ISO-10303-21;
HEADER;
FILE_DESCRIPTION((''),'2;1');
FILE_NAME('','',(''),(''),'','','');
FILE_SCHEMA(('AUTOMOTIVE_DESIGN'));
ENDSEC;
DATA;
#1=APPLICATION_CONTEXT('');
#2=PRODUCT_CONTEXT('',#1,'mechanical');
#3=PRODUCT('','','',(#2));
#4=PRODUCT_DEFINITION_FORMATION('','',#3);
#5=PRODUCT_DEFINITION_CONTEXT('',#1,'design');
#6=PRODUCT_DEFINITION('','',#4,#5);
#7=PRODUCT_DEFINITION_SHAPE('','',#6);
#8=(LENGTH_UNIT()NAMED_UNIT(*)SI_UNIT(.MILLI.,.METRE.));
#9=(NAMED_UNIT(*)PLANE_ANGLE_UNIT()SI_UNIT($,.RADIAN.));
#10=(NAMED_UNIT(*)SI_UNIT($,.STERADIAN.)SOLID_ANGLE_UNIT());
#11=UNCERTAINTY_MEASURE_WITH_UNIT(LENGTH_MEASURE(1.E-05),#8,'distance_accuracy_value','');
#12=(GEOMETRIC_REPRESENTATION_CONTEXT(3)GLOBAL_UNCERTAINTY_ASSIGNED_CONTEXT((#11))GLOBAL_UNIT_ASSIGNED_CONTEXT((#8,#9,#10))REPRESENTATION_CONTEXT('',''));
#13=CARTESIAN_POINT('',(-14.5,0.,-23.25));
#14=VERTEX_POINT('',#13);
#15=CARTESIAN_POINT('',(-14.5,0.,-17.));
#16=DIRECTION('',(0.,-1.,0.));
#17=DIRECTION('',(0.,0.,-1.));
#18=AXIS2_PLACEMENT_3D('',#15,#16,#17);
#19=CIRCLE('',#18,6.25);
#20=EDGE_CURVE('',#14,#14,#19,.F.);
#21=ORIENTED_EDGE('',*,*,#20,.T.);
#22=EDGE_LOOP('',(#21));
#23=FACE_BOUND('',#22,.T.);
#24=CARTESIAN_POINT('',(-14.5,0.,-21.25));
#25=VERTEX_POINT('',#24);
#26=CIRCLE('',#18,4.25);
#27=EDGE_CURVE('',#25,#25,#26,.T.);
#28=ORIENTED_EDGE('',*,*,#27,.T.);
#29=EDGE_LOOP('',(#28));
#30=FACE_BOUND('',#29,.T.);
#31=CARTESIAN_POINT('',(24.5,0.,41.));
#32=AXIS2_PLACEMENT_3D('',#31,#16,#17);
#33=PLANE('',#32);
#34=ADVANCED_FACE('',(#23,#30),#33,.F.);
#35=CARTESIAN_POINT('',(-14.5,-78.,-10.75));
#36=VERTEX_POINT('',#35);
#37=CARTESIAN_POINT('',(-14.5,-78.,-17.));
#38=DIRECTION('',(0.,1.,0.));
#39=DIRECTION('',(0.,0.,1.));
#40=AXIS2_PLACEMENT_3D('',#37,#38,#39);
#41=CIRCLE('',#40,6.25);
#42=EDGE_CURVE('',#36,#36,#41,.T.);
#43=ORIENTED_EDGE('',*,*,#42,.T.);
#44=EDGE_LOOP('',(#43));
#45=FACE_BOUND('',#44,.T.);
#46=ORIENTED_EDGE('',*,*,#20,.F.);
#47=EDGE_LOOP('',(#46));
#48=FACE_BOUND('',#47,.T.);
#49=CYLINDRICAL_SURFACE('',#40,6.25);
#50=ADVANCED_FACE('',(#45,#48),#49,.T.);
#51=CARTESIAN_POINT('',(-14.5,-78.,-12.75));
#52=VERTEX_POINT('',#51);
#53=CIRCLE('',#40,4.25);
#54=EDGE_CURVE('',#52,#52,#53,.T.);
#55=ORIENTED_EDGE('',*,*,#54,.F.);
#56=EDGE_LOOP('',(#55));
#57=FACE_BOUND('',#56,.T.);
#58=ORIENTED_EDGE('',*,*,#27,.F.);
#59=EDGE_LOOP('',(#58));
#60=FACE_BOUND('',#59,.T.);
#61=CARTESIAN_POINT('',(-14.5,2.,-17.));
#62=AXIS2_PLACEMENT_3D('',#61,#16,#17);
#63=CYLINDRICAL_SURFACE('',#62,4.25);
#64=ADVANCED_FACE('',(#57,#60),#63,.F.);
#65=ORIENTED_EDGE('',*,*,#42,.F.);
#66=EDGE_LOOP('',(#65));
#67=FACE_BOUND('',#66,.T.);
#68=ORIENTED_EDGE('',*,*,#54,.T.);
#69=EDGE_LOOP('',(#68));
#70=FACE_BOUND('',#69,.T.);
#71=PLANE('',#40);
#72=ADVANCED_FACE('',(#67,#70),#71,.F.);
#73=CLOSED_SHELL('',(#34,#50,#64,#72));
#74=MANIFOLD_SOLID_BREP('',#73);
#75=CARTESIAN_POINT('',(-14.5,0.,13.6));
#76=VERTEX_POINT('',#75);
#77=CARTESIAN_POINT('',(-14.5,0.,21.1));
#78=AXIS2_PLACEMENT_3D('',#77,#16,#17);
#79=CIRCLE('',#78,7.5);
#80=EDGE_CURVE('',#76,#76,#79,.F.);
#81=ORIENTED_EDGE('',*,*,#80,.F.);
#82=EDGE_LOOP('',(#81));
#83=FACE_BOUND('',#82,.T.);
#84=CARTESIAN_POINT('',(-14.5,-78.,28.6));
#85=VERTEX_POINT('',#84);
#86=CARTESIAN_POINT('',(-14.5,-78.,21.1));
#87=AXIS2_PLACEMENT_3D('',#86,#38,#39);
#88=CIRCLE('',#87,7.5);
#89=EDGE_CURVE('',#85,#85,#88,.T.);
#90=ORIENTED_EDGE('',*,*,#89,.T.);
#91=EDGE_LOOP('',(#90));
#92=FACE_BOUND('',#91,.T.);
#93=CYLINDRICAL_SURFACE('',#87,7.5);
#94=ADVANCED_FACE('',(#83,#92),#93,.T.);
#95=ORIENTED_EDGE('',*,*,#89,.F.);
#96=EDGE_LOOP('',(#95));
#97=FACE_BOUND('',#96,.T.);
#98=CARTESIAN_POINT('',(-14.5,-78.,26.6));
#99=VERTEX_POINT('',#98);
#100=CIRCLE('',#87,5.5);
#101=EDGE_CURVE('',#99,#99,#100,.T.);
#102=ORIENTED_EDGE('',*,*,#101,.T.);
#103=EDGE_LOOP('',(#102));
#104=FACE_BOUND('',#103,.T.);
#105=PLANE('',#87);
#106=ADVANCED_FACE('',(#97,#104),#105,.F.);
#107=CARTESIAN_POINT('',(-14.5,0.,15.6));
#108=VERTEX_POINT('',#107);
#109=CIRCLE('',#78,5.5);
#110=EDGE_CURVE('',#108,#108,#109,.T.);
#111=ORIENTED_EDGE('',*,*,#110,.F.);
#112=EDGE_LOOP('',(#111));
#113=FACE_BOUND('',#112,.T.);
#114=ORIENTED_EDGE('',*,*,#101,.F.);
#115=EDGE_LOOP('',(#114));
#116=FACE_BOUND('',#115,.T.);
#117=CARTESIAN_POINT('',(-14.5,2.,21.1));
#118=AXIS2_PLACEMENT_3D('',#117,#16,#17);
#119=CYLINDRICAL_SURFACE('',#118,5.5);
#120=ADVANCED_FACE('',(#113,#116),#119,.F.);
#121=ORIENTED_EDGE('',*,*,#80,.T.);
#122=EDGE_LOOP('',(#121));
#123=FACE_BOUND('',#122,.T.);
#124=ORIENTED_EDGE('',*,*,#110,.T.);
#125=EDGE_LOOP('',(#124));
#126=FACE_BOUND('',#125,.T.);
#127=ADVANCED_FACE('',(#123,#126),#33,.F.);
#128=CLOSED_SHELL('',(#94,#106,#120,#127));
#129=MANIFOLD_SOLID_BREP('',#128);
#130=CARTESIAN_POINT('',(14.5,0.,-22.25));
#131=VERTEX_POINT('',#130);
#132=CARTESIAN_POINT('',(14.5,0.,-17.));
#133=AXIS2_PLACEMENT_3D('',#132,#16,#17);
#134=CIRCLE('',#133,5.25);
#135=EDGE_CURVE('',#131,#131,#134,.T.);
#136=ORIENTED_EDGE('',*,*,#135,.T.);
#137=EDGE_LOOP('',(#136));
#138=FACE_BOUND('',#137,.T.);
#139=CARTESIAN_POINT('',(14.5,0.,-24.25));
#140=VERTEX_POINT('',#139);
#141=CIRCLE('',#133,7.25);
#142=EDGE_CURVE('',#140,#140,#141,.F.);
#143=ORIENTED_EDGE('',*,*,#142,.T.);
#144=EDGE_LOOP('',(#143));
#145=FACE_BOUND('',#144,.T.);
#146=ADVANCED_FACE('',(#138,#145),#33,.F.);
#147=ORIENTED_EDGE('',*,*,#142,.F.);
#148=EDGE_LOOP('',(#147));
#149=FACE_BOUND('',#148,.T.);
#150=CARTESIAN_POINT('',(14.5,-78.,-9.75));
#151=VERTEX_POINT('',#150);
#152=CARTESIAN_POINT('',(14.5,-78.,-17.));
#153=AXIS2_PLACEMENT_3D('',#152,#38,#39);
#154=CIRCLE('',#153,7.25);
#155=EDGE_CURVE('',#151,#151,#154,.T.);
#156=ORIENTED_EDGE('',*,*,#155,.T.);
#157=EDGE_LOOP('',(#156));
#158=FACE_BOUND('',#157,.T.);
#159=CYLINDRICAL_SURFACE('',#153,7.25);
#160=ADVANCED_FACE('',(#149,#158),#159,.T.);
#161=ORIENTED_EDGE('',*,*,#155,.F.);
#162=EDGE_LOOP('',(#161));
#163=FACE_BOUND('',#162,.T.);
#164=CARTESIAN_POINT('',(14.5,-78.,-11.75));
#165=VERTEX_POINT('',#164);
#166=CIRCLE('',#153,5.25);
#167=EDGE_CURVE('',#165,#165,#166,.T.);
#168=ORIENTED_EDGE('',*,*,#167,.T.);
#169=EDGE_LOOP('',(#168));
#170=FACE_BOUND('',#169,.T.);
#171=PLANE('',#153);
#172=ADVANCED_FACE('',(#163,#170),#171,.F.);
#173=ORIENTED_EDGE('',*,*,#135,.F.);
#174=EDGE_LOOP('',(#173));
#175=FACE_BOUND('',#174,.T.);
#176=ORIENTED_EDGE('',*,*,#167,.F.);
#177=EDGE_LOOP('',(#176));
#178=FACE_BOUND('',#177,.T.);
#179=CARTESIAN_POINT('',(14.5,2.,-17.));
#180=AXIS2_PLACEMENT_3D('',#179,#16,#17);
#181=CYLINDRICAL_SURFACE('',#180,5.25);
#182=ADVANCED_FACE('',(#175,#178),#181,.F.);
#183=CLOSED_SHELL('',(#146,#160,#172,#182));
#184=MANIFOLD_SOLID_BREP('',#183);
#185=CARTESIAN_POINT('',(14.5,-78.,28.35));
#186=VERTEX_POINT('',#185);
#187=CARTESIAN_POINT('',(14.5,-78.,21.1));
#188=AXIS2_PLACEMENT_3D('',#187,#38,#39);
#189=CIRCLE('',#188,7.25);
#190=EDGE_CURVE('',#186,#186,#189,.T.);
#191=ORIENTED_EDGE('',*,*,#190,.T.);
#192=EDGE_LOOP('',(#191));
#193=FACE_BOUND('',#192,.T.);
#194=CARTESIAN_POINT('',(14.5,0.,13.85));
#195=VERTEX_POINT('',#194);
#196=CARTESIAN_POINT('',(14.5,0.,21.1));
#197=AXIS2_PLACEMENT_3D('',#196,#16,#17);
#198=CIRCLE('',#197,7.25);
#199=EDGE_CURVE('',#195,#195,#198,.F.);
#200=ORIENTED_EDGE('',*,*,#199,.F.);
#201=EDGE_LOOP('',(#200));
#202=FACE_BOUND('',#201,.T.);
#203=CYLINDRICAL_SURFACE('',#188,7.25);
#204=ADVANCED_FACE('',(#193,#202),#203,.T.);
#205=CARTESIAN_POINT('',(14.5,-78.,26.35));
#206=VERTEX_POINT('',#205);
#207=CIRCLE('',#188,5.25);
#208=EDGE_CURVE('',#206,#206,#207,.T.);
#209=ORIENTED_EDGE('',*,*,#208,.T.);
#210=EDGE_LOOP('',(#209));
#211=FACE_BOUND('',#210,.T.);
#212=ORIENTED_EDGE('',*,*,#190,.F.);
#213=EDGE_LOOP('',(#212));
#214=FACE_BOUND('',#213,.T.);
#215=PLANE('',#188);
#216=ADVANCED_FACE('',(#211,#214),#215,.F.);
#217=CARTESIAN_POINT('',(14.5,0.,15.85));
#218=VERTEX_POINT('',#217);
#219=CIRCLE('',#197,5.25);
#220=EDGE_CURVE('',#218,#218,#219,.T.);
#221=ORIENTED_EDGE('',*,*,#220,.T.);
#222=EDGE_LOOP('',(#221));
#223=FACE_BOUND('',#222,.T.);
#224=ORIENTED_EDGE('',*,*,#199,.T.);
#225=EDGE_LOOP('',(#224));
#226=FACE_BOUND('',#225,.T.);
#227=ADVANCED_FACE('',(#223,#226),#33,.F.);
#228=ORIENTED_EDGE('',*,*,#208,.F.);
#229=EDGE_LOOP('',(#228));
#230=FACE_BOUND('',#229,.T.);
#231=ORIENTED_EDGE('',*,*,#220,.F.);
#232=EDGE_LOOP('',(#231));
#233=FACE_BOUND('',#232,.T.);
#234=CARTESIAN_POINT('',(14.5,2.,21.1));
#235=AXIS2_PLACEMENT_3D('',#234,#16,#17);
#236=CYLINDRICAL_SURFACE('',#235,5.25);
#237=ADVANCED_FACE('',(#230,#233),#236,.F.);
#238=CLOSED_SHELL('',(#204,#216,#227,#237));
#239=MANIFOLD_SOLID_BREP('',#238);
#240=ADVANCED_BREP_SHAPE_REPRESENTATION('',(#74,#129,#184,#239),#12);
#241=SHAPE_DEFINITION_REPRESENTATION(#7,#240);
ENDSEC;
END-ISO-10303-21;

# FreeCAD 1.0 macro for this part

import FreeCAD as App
import Part
import Sketcher

V = App.Vector


def add_polygon(sketch, points):
    """Adds a closed chain of lines whose ends are joined by coincident constraints."""
    first, n = sketch.GeometryCount, len(points)
    for a, b in zip(points, points[1:] + points[:1]):
        sketch.addGeometry(Part.LineSegment(App.Vector(*a, 0), App.Vector(*b, 0)), False)
    for i in range(n):
        sketch.addConstraint(Sketcher.Constraint("Coincident", first + i, 2, first + (i + 1) % n, 1))

doc = App.newDocument("Part")
params = doc.addObject("Spreadsheet::Sheet", "Params")
for row, (alias, value) in enumerate([
    ("sketch1_diameter", "11 mm"),
    ("sketch1_diameter2", "6 mm"),
    ("sketch1_diameter3", "10.5 mm"),
    ("sketch1_diameter4", "8.5 mm"),
    ("sketch1_width", "49 mm"),
    ("pad1_length", "2 mm"),
    ("sketch2_width", "49 mm"),
    ("sketch2_height", "5 mm"),
    ("pad2_length", "2 mm"),
    ("sketch3_diameter", "6 mm"),
    ("pocket1_length", "10 mm"),
    ("sketch4_diameter", "12.5 mm"),
    ("sketch4_diameter2", "8.5 mm"),
    ("pad3_length", "80 mm"),
    ("sketch5_diameter", "14.5 mm"),
    ("sketch5_diameter2", "10.5 mm"),
    ("pad4_length", "80 mm"),
    ("sketch6_diameter", "15 mm"),
    ("sketch6_diameter2", "11 mm"),
    ("sketch6_diameter3", "14.5 mm"),
    ("sketch6_diameter4", "10.5 mm"),
    ("pad5_length", "80 mm"),
], start=1):
    params.set(f"A{row}", alias)
    params.set(f"B{row}", "=" + value)
    params.setAlias(f"B{row}", alias)

body = doc.addObject("PartDesign::Body", "Body")
body.AllowCompound = True

sketch1 = doc.addObject("Sketcher::SketchObject", "Sketch")
body.addObject(sketch1)
sketch1.AttachmentSupport = (doc.XZ_Plane, [""])
sketch1.MapMode = "FlatFace"
add_polygon(sketch1, [(-24.5, -37), (-24.5, 36), (24.5, 36), (24.5, -37)])
sketch1.addGeometry(Part.Circle(V(-14.5, 21.1, 0), V(0, 0, 1), 5.5), False)
sketch1.addGeometry(Part.Circle(V(14.5, 21.1, 0), V(0, 0, 1), 5.25), False)
sketch1.addGeometry(Part.Circle(V(-14.5, -17, 0), V(0, 0, 1), 4.25), False)
sketch1.addGeometry(Part.Circle(V(-19.5, -32, 0), V(0, 0, 1), 3), False)
sketch1.addGeometry(Part.Circle(V(14.5, -17, 0), V(0, 0, 1), 5.25), False)
sketch1.addGeometry(Part.Circle(V(19.5, -32, 0), V(0, 0, 1), 3), False)
sketch1.addConstraint([
    Sketcher.Constraint("Vertical", 0),
    Sketcher.Constraint("Horizontal", 1),
    Sketcher.Constraint("Vertical", 2),
    Sketcher.Constraint("Horizontal", 3),
    Sketcher.Constraint("Equal", 5, 8),
    Sketcher.Constraint("Equal", 7, 9),
    Sketcher.Constraint("Symmetric", 4, 3, 5, 3, -2),
    Sketcher.Constraint("Symmetric", 6, 3, 8, 3, -2),
    Sketcher.Constraint("Symmetric", 7, 3, 9, 3, -2),
    Sketcher.Constraint("Vertical", 4, 3, 6, 3),
    Sketcher.Constraint("Diameter", 4, 11.0),
    Sketcher.Constraint("Diameter", 7, 6.0),
    Sketcher.Constraint("Diameter", 5, 10.5),
    Sketcher.Constraint("Diameter", 6, 8.5),
    Sketcher.Constraint("DistanceX", 1, 1, 1, 2, 49.0),
    Sketcher.Constraint("DistanceY", 0, 1, 0, 2, 73.0),
    Sketcher.Constraint("DistanceY", 6, 3, -1, 1, 17.0),
    Sketcher.Constraint("DistanceY", 7, 3, -1, 1, 32.0),
    Sketcher.Constraint("DistanceY", -1, 1, 0, 2, 36.0),
    Sketcher.Constraint("DistanceX", 4, 3, 5, 3, 29.0),
    Sketcher.Constraint("DistanceX", 7, 3, 6, 3, 5.0),
    Sketcher.Constraint("DistanceX", 0, 2, 4, 3, 10.0),
    Sketcher.Constraint("DistanceY", -1, 1, 4, 3, 21.1),
])
sketch1.setExpression("Constraints[14]", "Params.sketch1_diameter")
sketch1.setExpression("Constraints[15]", "Params.sketch1_diameter2")
sketch1.setExpression("Constraints[16]", "Params.sketch1_diameter3")
sketch1.setExpression("Constraints[17]", "Params.sketch1_diameter4")
sketch1.setExpression("Constraints[18]", "Params.sketch1_width")
pad1 = doc.addObject("PartDesign::Pad", "Pad")
body.addObject(pad1)
pad1.Profile = sketch1
pad1.setExpression("Length", "Params.pad1_length")
pad1.Reversed = True

sketch2 = doc.addObject("Sketcher::SketchObject", "Sketch001")
body.addObject(sketch2)
sketch2.AttachmentSupport = (doc.XZ_Plane, [""])
sketch2.MapMode = "FlatFace"
sketch2.AttachmentOffset = App.Placement(V(0, 0, -2), App.Rotation())
add_polygon(sketch2, [(-24.5, 36), (-24.5, 41), (24.5, 41), (24.5, 36)])
sketch2.addConstraint([
    Sketcher.Constraint("Vertical", 0),
    Sketcher.Constraint("Horizontal", 1),
    Sketcher.Constraint("Vertical", 2),
    Sketcher.Constraint("Horizontal", 3),
    Sketcher.Constraint("DistanceX", 1, 1, 1, 2, 49.0),
    Sketcher.Constraint("DistanceY", 0, 1, 0, 2, 5.0),
    Sketcher.Constraint("DistanceY", -1, 1, 0, 2, 41.0),
    Sketcher.Constraint("DistanceX", 0, 2, -1, 1, 24.5),
])
sketch2.setExpression("Constraints[8]", "Params.sketch2_width")
sketch2.setExpression("Constraints[9]", "Params.sketch2_height")
pad2 = doc.addObject("PartDesign::Pad", "Pad001")
body.addObject(pad2)
pad2.Profile = sketch2
pad2.setExpression("Length", "Params.pad2_length")

sketch3 = doc.addObject("Sketcher::SketchObject", "Sketch002")
body.addObject(sketch3)
sketch3.AttachmentSupport = (doc.XZ_Plane, [""])
sketch3.MapMode = "FlatFace"
sketch3.AttachmentOffset = App.Placement(V(0, 0, -2), App.Rotation())
sketch3.addGeometry([
    Part.Circle(V(-19.5, 36, 0), V(0, 0, 1), 3),
    Part.Circle(V(19.5, 36, 0), V(0, 0, 1), 3),
], False)
sketch3.addConstraint([
    Sketcher.Constraint("Equal", 0, 1),
    Sketcher.Constraint("Symmetric", 0, 3, 1, 3, -2),
    Sketcher.Constraint("Diameter", 0, 6.0),
    Sketcher.Constraint("DistanceY", -1, 1, 0, 3, 36.0),
    Sketcher.Constraint("DistanceX", 0, 3, 1, 3, 39.0),
])
sketch3.setExpression("Constraints[2]", "Params.sketch3_diameter")
pocket1 = doc.addObject("PartDesign::Pocket", "Pocket")
body.addObject(pocket1)
pocket1.Profile = sketch3
pocket1.setExpression("Length", "Params.pocket1_length")
pocket1.Reversed = True

sketch4 = doc.addObject("Sketcher::SketchObject", "Sketch003")
body.addObject(sketch4)
sketch4.AttachmentSupport = (doc.XZ_Plane, [""])
sketch4.MapMode = "FlatFace"
sketch4.AttachmentOffset = App.Placement(V(0, 0, -2), App.Rotation())
sketch4.addGeometry([
    Part.Circle(V(-14.5, -17, 0), V(0, 0, 1), 6.25),
    Part.Circle(V(-14.5, -17, 0), V(0, 0, 1), 4.25),
], False)
sketch4.addConstraint([
    Sketcher.Constraint("Coincident", 1, 3, 0, 3),
    Sketcher.Constraint("Diameter", 0, 12.5),
    Sketcher.Constraint("Diameter", 1, 8.5),
    Sketcher.Constraint("DistanceY", 0, 3, -1, 1, 17.0),
    Sketcher.Constraint("DistanceX", 0, 3, -1, 1, 14.5),
])
sketch4.setExpression("Constraints[1]", "Params.sketch4_diameter")
sketch4.setExpression("Constraints[2]", "Params.sketch4_diameter2")
pad3 = doc.addObject("PartDesign::Pad", "Pad002")
body.addObject(pad3)
pad3.Profile = sketch4
pad3.setExpression("Length", "Params.pad3_length")

sketch5 = doc.addObject("Sketcher::SketchObject", "Sketch004")
body.addObject(sketch5)
sketch5.AttachmentSupport = (doc.XZ_Plane, [""])
sketch5.MapMode = "FlatFace"
sketch5.AttachmentOffset = App.Placement(V(0, 0, -2), App.Rotation())
sketch5.addGeometry([
    Part.Circle(V(14.5, -17, 0), V(0, 0, 1), 7.25),
    Part.Circle(V(14.5, -17, 0), V(0, 0, 1), 5.25),
], False)
sketch5.addConstraint([
    Sketcher.Constraint("Coincident", 1, 3, 0, 3),
    Sketcher.Constraint("Diameter", 0, 14.5),
    Sketcher.Constraint("Diameter", 1, 10.5),
    Sketcher.Constraint("DistanceY", 0, 3, -1, 1, 17.0),
    Sketcher.Constraint("DistanceX", -1, 1, 0, 3, 14.5),
])
sketch5.setExpression("Constraints[1]", "Params.sketch5_diameter")
sketch5.setExpression("Constraints[2]", "Params.sketch5_diameter2")
pad4 = doc.addObject("PartDesign::Pad", "Pad003")
body.addObject(pad4)
pad4.Profile = sketch5
pad4.setExpression("Length", "Params.pad4_length")

sketch6 = doc.addObject("Sketcher::SketchObject", "Sketch005")
body.addObject(sketch6)
sketch6.AttachmentSupport = (doc.XZ_Plane, [""])
sketch6.MapMode = "FlatFace"
sketch6.AttachmentOffset = App.Placement(V(0, 0, -2), App.Rotation())
sketch6.addGeometry([
    Part.Circle(V(-14.5, 21.1, 0), V(0, 0, 1), 7.5),
    Part.Circle(V(-14.5, 21.1, 0), V(0, 0, 1), 5.5),
    Part.Circle(V(14.5, 21.1, 0), V(0, 0, 1), 7.25),
    Part.Circle(V(14.5, 21.1, 0), V(0, 0, 1), 5.25),
], False)
sketch6.addConstraint([
    Sketcher.Constraint("Coincident", 1, 3, 0, 3),
    Sketcher.Constraint("Coincident", 3, 3, 2, 3),
    Sketcher.Constraint("Symmetric", 0, 3, 2, 3, -2),
    Sketcher.Constraint("Diameter", 0, 15.0),
    Sketcher.Constraint("Diameter", 1, 11.0),
    Sketcher.Constraint("Diameter", 2, 14.5),
    Sketcher.Constraint("Diameter", 3, 10.5),
    Sketcher.Constraint("DistanceX", 0, 3, 2, 3, 29.0),
    Sketcher.Constraint("DistanceY", -1, 1, 0, 3, 21.1),
])
sketch6.setExpression("Constraints[3]", "Params.sketch6_diameter")
sketch6.setExpression("Constraints[4]", "Params.sketch6_diameter2")
sketch6.setExpression("Constraints[5]", "Params.sketch6_diameter3")
sketch6.setExpression("Constraints[6]", "Params.sketch6_diameter4")
pad5 = doc.addObject("PartDesign::Pad", "Pad004")
body.addObject(pad5)
pad5.Profile = sketch6
pad5.setExpression("Length", "Params.pad5_length")

sketch7 = doc.addObject("Sketcher::SketchObject", "Sketch006")
body.addObject(sketch7)
sketch7.AttachmentSupport = (doc.XY_Plane, [""])
sketch7.MapMode = "FlatFace"
sketch7.AttachmentOffset = App.Placement(V(0, 0, -37), App.Rotation())
add_polygon(sketch7, [(24.5, 5.700105), (24.5, 0), (-25.367598, 0), (-25.367598, 5.700105)])
sketch7.addConstraint([
    Sketcher.Constraint("Vertical", 0),
    Sketcher.Constraint("Horizontal", 1),
    Sketcher.Constraint("Vertical", 2),
    Sketcher.Constraint("Horizontal", 3),
    Sketcher.Constraint("PointOnObject", 0, 2, -1),
    Sketcher.Constraint("DistanceX", -1, 1, 0, 2, 24.5),
    Sketcher.Constraint("DistanceX", 1, 2, 1, 1, 49.867598),
    Sketcher.Constraint("DistanceY", 0, 2, 0, 1, 5.700105),
])
pocket2 = doc.addObject("PartDesign::Pocket", "Pocket001")
body.addObject(pocket2)
pocket2.Profile = sketch7
pocket2.Type = "ThroughAll"
pocket2.Reversed = True

doc.recompute()
